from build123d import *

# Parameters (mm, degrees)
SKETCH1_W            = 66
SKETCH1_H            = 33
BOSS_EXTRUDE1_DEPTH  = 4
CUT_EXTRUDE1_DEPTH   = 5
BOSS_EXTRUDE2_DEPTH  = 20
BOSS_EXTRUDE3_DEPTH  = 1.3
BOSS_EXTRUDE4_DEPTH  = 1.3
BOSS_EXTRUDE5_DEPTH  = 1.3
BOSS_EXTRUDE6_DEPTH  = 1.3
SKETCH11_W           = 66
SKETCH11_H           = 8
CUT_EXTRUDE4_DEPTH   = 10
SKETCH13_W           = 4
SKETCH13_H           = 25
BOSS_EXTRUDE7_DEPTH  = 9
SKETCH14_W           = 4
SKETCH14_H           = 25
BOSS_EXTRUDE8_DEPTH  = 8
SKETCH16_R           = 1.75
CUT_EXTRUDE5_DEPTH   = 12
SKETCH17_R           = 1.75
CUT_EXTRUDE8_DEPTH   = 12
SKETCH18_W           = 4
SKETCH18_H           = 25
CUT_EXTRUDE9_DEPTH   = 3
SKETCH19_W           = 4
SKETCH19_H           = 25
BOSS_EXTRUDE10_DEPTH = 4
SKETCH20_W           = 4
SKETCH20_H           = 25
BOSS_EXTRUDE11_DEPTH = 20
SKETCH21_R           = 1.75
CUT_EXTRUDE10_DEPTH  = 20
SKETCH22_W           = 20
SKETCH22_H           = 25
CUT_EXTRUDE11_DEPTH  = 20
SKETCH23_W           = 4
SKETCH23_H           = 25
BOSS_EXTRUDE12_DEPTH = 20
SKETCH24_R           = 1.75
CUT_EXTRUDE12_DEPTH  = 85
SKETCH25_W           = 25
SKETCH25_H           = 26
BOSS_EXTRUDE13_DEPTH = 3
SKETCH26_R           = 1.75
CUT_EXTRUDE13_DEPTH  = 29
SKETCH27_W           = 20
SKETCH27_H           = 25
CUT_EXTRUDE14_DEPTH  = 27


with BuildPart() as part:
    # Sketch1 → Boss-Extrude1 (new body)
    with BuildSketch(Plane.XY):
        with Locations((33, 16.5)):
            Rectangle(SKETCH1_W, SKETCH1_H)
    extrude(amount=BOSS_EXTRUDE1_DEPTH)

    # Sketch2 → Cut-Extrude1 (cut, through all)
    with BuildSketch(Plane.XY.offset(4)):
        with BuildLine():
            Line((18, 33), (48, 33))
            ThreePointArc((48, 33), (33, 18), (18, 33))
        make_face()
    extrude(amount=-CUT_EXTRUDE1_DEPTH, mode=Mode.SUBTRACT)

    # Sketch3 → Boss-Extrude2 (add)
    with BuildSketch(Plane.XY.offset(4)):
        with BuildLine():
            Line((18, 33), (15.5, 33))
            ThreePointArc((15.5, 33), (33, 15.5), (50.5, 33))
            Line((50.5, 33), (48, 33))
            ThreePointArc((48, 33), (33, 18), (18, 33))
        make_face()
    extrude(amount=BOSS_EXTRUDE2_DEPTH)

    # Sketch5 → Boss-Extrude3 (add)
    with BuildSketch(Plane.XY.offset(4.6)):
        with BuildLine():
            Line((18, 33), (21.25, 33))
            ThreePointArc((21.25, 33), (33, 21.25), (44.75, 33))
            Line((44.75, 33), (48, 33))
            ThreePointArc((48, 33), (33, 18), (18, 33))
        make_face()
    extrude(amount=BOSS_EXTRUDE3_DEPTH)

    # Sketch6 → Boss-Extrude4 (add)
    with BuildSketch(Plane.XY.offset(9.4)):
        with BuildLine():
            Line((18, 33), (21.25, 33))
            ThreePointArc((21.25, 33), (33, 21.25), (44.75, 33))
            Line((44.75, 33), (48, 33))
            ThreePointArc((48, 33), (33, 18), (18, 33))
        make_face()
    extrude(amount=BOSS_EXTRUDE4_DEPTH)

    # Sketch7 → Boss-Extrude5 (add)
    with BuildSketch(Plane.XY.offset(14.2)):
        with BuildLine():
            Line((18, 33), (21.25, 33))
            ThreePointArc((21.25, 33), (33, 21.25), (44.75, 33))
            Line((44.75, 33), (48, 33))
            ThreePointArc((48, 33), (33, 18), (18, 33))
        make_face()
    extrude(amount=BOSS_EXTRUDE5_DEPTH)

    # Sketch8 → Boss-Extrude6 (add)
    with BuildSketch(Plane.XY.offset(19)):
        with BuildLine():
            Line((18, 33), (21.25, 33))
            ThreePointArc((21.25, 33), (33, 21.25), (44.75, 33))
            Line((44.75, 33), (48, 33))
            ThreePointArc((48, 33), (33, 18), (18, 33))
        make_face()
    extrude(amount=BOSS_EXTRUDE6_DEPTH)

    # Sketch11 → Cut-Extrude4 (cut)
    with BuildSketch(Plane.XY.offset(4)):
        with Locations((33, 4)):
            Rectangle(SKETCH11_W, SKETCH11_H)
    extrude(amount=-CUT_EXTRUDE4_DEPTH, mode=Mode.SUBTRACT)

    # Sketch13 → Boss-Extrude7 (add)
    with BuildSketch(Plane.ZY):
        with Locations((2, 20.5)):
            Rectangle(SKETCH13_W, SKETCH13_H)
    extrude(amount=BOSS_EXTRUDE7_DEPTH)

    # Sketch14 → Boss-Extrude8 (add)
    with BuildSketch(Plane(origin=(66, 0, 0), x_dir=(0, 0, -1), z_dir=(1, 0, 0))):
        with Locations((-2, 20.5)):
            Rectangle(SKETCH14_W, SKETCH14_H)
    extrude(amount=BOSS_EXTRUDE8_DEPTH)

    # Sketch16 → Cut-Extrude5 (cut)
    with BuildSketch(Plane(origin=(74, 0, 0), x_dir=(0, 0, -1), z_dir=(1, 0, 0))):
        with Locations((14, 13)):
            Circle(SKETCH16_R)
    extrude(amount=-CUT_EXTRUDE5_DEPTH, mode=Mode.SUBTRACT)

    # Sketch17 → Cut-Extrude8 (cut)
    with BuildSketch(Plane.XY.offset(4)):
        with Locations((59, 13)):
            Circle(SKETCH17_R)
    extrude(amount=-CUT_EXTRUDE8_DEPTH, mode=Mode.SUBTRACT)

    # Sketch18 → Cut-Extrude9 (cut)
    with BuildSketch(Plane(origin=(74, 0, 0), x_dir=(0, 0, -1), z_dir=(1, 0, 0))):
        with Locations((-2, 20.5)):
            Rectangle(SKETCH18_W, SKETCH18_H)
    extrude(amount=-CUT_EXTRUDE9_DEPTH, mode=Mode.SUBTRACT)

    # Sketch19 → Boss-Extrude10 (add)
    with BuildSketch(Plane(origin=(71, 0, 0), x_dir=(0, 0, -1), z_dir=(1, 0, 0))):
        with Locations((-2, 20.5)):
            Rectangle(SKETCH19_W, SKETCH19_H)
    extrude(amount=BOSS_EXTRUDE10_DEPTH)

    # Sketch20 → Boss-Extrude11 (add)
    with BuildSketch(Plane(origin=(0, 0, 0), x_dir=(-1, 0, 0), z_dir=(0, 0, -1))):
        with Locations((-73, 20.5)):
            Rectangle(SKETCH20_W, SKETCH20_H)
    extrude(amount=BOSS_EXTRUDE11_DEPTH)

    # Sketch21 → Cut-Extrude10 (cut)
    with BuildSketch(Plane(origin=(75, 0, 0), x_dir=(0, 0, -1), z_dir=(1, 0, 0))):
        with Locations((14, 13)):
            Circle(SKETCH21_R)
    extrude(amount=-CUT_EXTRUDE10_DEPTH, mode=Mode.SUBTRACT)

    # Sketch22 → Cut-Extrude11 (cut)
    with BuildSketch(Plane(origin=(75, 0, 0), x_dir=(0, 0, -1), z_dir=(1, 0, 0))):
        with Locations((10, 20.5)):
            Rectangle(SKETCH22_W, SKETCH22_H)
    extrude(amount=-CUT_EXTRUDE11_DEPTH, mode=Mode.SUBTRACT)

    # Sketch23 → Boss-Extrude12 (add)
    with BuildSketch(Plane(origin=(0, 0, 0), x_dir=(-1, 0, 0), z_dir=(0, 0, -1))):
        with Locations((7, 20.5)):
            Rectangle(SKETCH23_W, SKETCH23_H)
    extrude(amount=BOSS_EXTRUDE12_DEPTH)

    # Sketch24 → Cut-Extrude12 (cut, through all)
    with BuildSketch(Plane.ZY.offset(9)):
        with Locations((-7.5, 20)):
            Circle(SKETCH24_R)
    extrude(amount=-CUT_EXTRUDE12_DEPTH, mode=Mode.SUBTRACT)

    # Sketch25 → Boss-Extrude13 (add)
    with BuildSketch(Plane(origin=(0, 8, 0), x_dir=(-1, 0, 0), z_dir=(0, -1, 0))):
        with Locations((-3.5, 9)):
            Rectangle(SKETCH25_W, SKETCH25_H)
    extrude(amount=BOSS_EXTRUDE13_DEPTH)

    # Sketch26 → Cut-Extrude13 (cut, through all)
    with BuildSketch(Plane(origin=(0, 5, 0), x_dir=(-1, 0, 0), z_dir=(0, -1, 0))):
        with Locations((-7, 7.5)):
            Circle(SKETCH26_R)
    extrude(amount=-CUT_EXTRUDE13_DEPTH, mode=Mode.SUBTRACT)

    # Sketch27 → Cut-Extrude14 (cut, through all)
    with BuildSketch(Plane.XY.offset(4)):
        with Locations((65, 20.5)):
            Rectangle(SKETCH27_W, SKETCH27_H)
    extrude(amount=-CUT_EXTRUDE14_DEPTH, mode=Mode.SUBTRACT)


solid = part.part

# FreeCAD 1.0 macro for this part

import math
import FreeCAD as App
import Part
import Sketcher
Q = App.Units.Quantity

doc = App.newDocument("Part")
body = doc.addObject("PartDesign::Body", "Body")

# Sketch on XY plane
sketch1 = body.newObject("Sketcher::SketchObject", "Sketch")
sketch1.AttachmentSupport = (doc.getObject("XY_Plane"), [""])
sketch1.MapMode = "FlatFace"
sketch1.addGeometry([
    Part.LineSegment(App.Vector(0, 33, 0), App.Vector(0, 0, 0)),
    Part.LineSegment(App.Vector(0, 0, 0), App.Vector(66, 0, 0)),
    Part.LineSegment(App.Vector(66, 0, 0), App.Vector(66, 33, 0)),
    Part.LineSegment(App.Vector(66, 33, 0), App.Vector(0, 33, 0)),
], False)
sketch1.addConstraint([
    Sketcher.Constraint("Coincident", 0, 2, 1, 1),
    Sketcher.Constraint("Coincident", 1, 2, 2, 1),
    Sketcher.Constraint("Coincident", 2, 2, 3, 1),
    Sketcher.Constraint("Coincident", 3, 2, 0, 1),
    Sketcher.Constraint("Vertical", 0),
    Sketcher.Constraint("Horizontal", 1),
    Sketcher.Constraint("Vertical", 2),
    Sketcher.Constraint("Horizontal", 3),
    Sketcher.Constraint("Coincident", 0, 2, -1, 1),
    Sketcher.Constraint("DistanceX", 1, 1, 1, 2, Q("66 mm")),
    Sketcher.Constraint("DistanceY", 0, 2, 0, 1, Q("33 mm")),
])
pad1 = body.newObject("PartDesign::Pad", "Pad")
pad1.Profile = sketch1
pad1.Length = 4

# Sketch on XY plane
sketch2 = body.newObject("Sketcher::SketchObject", "Sketch001")
sketch2.AttachmentSupport = (doc.getObject("XY_Plane"), [""])
sketch2.MapMode = "FlatFace"
sketch2.AttachmentOffset = App.Placement(App.Vector(0, 0, 4), App.Rotation())
sketch2.addGeometry([
    Part.LineSegment(App.Vector(48, 33, 0), App.Vector(18, 33, 0)),
    Part.ArcOfCircle(Part.Circle(App.Vector(33, 33, 0), App.Vector(0, 0, 1), 15), math.radians(180), math.radians(360)),
], False)
sketch2.addConstraint([
    Sketcher.Constraint("Coincident", 0, 1, 1, 2),
    Sketcher.Constraint("Coincident", 1, 1, 0, 2),
    Sketcher.Constraint("Horizontal", 0),
    Sketcher.Constraint("Horizontal", 1, 3, 0, 1),
    Sketcher.Constraint("Radius", 1, Q("15 mm")),
    Sketcher.Constraint("DistanceX", -1, 1, 1, 3, Q("33 mm")),
    Sketcher.Constraint("DistanceY", -1, 1, 1, 3, Q("33 mm")),
])
pocket1 = body.newObject("PartDesign::Pocket", "Pocket")
pocket1.Profile = sketch2
pocket1.Type = "ThroughAll"

# Sketch on XY plane
sketch3 = body.newObject("Sketcher::SketchObject", "Sketch002")
sketch3.AttachmentSupport = (doc.getObject("XY_Plane"), [""])
sketch3.MapMode = "FlatFace"
sketch3.AttachmentOffset = App.Placement(App.Vector(0, 0, 4), App.Rotation())
sketch3.addGeometry([
    Part.LineSegment(App.Vector(18, 33, 0), App.Vector(15.5, 33, 0)),
    Part.ArcOfCircle(Part.Circle(App.Vector(33, 33, 0), App.Vector(0, 0, 1), 17.5), math.radians(180), math.radians(360)),
    Part.LineSegment(App.Vector(50.5, 33, 0), App.Vector(48, 33, 0)),
    Part.ArcOfCircle(Part.Circle(App.Vector(33, 33, 0), App.Vector(0, 0, 1), 15), math.radians(180), math.radians(360)),
], False)
sketch3.addConstraint([
    Sketcher.Constraint("Coincident", 0, 2, 1, 1),
    Sketcher.Constraint("Coincident", 1, 2, 2, 1),
    Sketcher.Constraint("Coincident", 2, 2, 3, 2),
    Sketcher.Constraint("Coincident", 3, 1, 0, 1),
    Sketcher.Constraint("Horizontal", 0),
    Sketcher.Constraint("Horizontal", 2),
    Sketcher.Constraint("Coincident", 3, 3, 1, 3),
    Sketcher.Constraint("Horizontal", 3, 3, 0, 2),
    Sketcher.Constraint("Horizontal", 0, 2, 1, 2),
    Sketcher.Constraint("Radius", 3, Q("15 mm")),
    Sketcher.Constraint("Radius", 1, Q("17.5 mm")),
    Sketcher.Constraint("DistanceX", -1, 1, 1, 3, Q("33 mm")),
    Sketcher.Constraint("DistanceY", -1, 1, 1, 3, Q("33 mm")),
])
pad2 = body.newObject("PartDesign::Pad", "Pad001")
pad2.Profile = sketch3
pad2.Length = 20

# Sketch on XY plane
sketch4 = body.newObject("Sketcher::SketchObject", "Sketch003")
sketch4.AttachmentSupport = (doc.getObject("XY_Plane"), [""])
sketch4.MapMode = "FlatFace"
sketch4.AttachmentOffset = App.Placement(App.Vector(0, 0, 4.6), App.Rotation())
sketch4.addGeometry([
    Part.LineSegment(App.Vector(21.2, 33, 0), App.Vector(18, 33, 0)),
    Part.ArcOfCircle(Part.Circle(App.Vector(33, 33, 0), App.Vector(0, 0, 1), 15), math.radians(180), math.radians(360)),
    Part.LineSegment(App.Vector(48, 33, 0), App.Vector(44.8, 33, 0)),
    Part.ArcOfCircle(Part.Circle(App.Vector(33, 33, 0), App.Vector(0, 0, 1), 11.8), math.radians(180), math.radians(360)),
], False)
sketch4.addConstraint([
    Sketcher.Constraint("Coincident", 0, 2, 1, 1),
    Sketcher.Constraint("Coincident", 1, 2, 2, 1),
    Sketcher.Constraint("Coincident", 2, 2, 3, 2),
    Sketcher.Constraint("Coincident", 3, 1, 0, 1),
    Sketcher.Constraint("Horizontal", 0),
    Sketcher.Constraint("Horizontal", 2),
    Sketcher.Constraint("Coincident", 3, 3, 1, 3),
    Sketcher.Constraint("Horizontal", 3, 3, 0, 2),
    Sketcher.Constraint("Horizontal", 0, 2, 1, 2),
    Sketcher.Constraint("Radius", 1, Q("15 mm")),
    Sketcher.Constraint("Radius", 3, Q("11.75 mm")),
    Sketcher.Constraint("DistanceX", -1, 1, 1, 3, Q("33 mm")),
    Sketcher.Constraint("DistanceY", -1, 1, 1, 3, Q("33 mm")),
])
pad3 = body.newObject("PartDesign::Pad", "Pad002")
pad3.Profile = sketch4
pad3.Length = 1.3

# Sketch on XY plane
sketch5 = body.newObject("Sketcher::SketchObject", "Sketch004")
sketch5.AttachmentSupport = (doc.getObject("XY_Plane"), [""])
sketch5.MapMode = "FlatFace"
sketch5.AttachmentOffset = App.Placement(App.Vector(0, 0, 9.4), App.Rotation())
sketch5.addGeometry([
    Part.LineSegment(App.Vector(21.2, 33, 0), App.Vector(18, 33, 0)),
    Part.ArcOfCircle(Part.Circle(App.Vector(33, 33, 0), App.Vector(0, 0, 1), 15), math.radians(180), math.radians(360)),
    Part.LineSegment(App.Vector(48, 33, 0), App.Vector(44.8, 33, 0)),
    Part.ArcOfCircle(Part.Circle(App.Vector(33, 33, 0), App.Vector(0, 0, 1), 11.8), math.radians(180), math.radians(360)),
], False)
sketch5.addConstraint([
    Sketcher.Constraint("Coincident", 0, 2, 1, 1),
    Sketcher.Constraint("Coincident", 1, 2, 2, 1),
    Sketcher.Constraint("Coincident", 2, 2, 3, 2),
    Sketcher.Constraint("Coincident", 3, 1, 0, 1),
    Sketcher.Constraint("Horizontal", 0),
    Sketcher.Constraint("Horizontal", 2),
    Sketcher.Constraint("Coincident", 3, 3, 1, 3),
    Sketcher.Constraint("Horizontal", 3, 3, 0, 2),
    Sketcher.Constraint("Horizontal", 0, 2, 1, 2),
    Sketcher.Constraint("Radius", 1, Q("15 mm")),
    Sketcher.Constraint("Radius", 3, Q("11.75 mm")),
    Sketcher.Constraint("DistanceX", -1, 1, 1, 3, Q("33 mm")),
    Sketcher.Constraint("DistanceY", -1, 1, 1, 3, Q("33 mm")),
])
pad4 = body.newObject("PartDesign::Pad", "Pad003")
pad4.Profile = sketch5
pad4.Length = 1.3

# Sketch on XY plane
sketch6 = body.newObject("Sketcher::SketchObject", "Sketch005")
sketch6.AttachmentSupport = (doc.getObject("XY_Plane"), [""])
sketch6.MapMode = "FlatFace"
sketch6.AttachmentOffset = App.Placement(App.Vector(0, 0, 14.2), App.Rotation())
sketch6.addGeometry([
    Part.LineSegment(App.Vector(21.2, 33, 0), App.Vector(18, 33, 0)),
    Part.ArcOfCircle(Part.Circle(App.Vector(33, 33, 0), App.Vector(0, 0, 1), 15), math.radians(180), math.radians(360)),
    Part.LineSegment(App.Vector(48, 33, 0), App.Vector(44.8, 33, 0)),
    Part.ArcOfCircle(Part.Circle(App.Vector(33, 33, 0), App.Vector(0, 0, 1), 11.8), math.radians(180), math.radians(360)),
], False)
sketch6.addConstraint([
    Sketcher.Constraint("Coincident", 0, 2, 1, 1),
    Sketcher.Constraint("Coincident", 1, 2, 2, 1),
    Sketcher.Constraint("Coincident", 2, 2, 3, 2),
    Sketcher.Constraint("Coincident", 3, 1, 0, 1),
    Sketcher.Constraint("Horizontal", 0),
    Sketcher.Constraint("Horizontal", 2),
    Sketcher.Constraint("Coincident", 3, 3, 1, 3),
    Sketcher.Constraint("Horizontal", 3, 3, 0, 2),
    Sketcher.Constraint("Horizontal", 0, 2, 1, 2),
    Sketcher.Constraint("Radius", 1, Q("15 mm")),
    Sketcher.Constraint("Radius", 3, Q("11.75 mm")),
    Sketcher.Constraint("DistanceX", -1, 1, 1, 3, Q("33 mm")),
    Sketcher.Constraint("DistanceY", -1, 1, 1, 3, Q("33 mm")),
])
pad5 = body.newObject("PartDesign::Pad", "Pad004")
pad5.Profile = sketch6
pad5.Length = 1.3

# Sketch on XY plane
sketch7 = body.newObject("Sketcher::SketchObject", "Sketch006")
sketch7.AttachmentSupport = (doc.getObject("XY_Plane"), [""])
sketch7.MapMode = "FlatFace"
sketch7.AttachmentOffset = App.Placement(App.Vector(0, 0, 19), App.Rotation())
sketch7.addGeometry([
    Part.LineSegment(App.Vector(21.2, 33, 0), App.Vector(18, 33, 0)),
    Part.ArcOfCircle(Part.Circle(App.Vector(33, 33, 0), App.Vector(0, 0, 1), 15), math.radians(180), math.radians(360)),
    Part.LineSegment(App.Vector(48, 33, 0), App.Vector(44.8, 33, 0)),
    Part.ArcOfCircle(Part.Circle(App.Vector(33, 33, 0), App.Vector(0, 0, 1), 11.8), math.radians(180), math.radians(360)),
], False)
sketch7.addConstraint([
    Sketcher.Constraint("Coincident", 0, 2, 1, 1),
    Sketcher.Constraint("Coincident", 1, 2, 2, 1),
    Sketcher.Constraint("Coincident", 2, 2, 3, 2),
    Sketcher.Constraint("Coincident", 3, 1, 0, 1),
    Sketcher.Constraint("Horizontal", 0),
    Sketcher.Constraint("Horizontal", 2),
    Sketcher.Constraint("Coincident", 3, 3, 1, 3),
    Sketcher.Constraint("Horizontal", 3, 3, 0, 2),
    Sketcher.Constraint("Horizontal", 0, 2, 1, 2),
    Sketcher.Constraint("Radius", 1, Q("15 mm")),
    Sketcher.Constraint("Radius", 3, Q("11.75 mm")),
    Sketcher.Constraint("DistanceX", -1, 1, 1, 3, Q("33 mm")),
    Sketcher.Constraint("DistanceY", -1, 1, 1, 3, Q("33 mm")),
])
pad6 = body.newObject("PartDesign::Pad", "Pad005")
pad6.Profile = sketch7
pad6.Length = 1.3

# Sketch on XY plane
sketch8 = body.newObject("Sketcher::SketchObject", "Sketch007")
sketch8.AttachmentSupport = (doc.getObject("XY_Plane"), [""])
sketch8.MapMode = "FlatFace"
sketch8.AttachmentOffset = App.Placement(App.Vector(0, 0, 4), App.Rotation())
sketch8.addGeometry([
    Part.LineSegment(App.Vector(0, 8, 0), App.Vector(0, 0, 0)),
    Part.LineSegment(App.Vector(0, 0, 0), App.Vector(66, 0, 0)),
    Part.LineSegment(App.Vector(66, 0, 0), App.Vector(66, 8, 0)),
    Part.LineSegment(App.Vector(66, 8, 0), App.Vector(0, 8, 0)),
], False)
sketch8.addConstraint([
    Sketcher.Constraint("Coincident", 0, 2, 1, 1),
    Sketcher.Constraint("Coincident", 1, 2, 2, 1),
    Sketcher.Constraint("Coincident", 2, 2, 3, 1),
    Sketcher.Constraint("Coincident", 3, 2, 0, 1),
    Sketcher.Constraint("Vertical", 0),
    Sketcher.Constraint("Horizontal", 1),
    Sketcher.Constraint("Vertical", 2),
    Sketcher.Constraint("Horizontal", 3),
    Sketcher.Constraint("Coincident", 0, 2, -1, 1),
    Sketcher.Constraint("DistanceX", 1, 1, 1, 2, Q("66 mm")),
    Sketcher.Constraint("DistanceY", 0, 2, 0, 1, Q("8 mm")),
])
pocket2 = body.newObject("PartDesign::Pocket", "Pocket001")
pocket2.Profile = sketch8
pocket2.Length = 10

# Sketch on YZ plane
sketch9 = body.newObject("Sketcher::SketchObject", "Sketch008")
sketch9.AttachmentSupport = (doc.getObject("YZ_Plane"), [""])
sketch9.MapMode = "FlatFace"
sketch9.addGeometry([
    Part.LineSegment(App.Vector(33, 0, 0), App.Vector(8, 0, 0)),
    Part.LineSegment(App.Vector(8, 0, 0), App.Vector(8, 4, 0)),
    Part.LineSegment(App.Vector(8, 4, 0), App.Vector(33, 4, 0)),
    Part.LineSegment(App.Vector(33, 4, 0), App.Vector(33, 0, 0)),
], False)
sketch9.addConstraint([
    Sketcher.Constraint("Coincident", 0, 2, 1, 1),
    Sketcher.Constraint("Coincident", 1, 2, 2, 1),
    Sketcher.Constraint("Coincident", 2, 2, 3, 1),
    Sketcher.Constraint("Coincident", 3, 2, 0, 1),
    Sketcher.Constraint("Horizontal", 0),
    Sketcher.Constraint("Vertical", 1),
    Sketcher.Constraint("Horizontal", 2),
    Sketcher.Constraint("Vertical", 3),
    Sketcher.Constraint("PointOnObject", 0, 2, -1),
    Sketcher.Constraint("DistanceX", 0, 2, 0, 1, Q("25 mm")),
    Sketcher.Constraint("DistanceY", 1, 1, 1, 2, Q("4 mm")),
    Sketcher.Constraint("DistanceX", -1, 1, 0, 2, Q("8 mm")),
])
pad7 = body.newObject("PartDesign::Pad", "Pad006")
pad7.Profile = sketch9
pad7.Length = 9
pad7.Reversed = True

# Sketch on YZ plane
sketch10 = body.newObject("Sketcher::SketchObject", "Sketch009")
sketch10.AttachmentSupport = (doc.getObject("YZ_Plane"), [""])
sketch10.MapMode = "FlatFace"
sketch10.AttachmentOffset = App.Placement(App.Vector(0, 0, 66), App.Rotation())
sketch10.addGeometry([
    Part.LineSegment(App.Vector(33, 4, 0), App.Vector(8, 4, 0)),
    Part.LineSegment(App.Vector(8, 4, 0), App.Vector(8, 0, 0)),
    Part.LineSegment(App.Vector(8, 0, 0), App.Vector(33, 0, 0)),
    Part.LineSegment(App.Vector(33, 0, 0), App.Vector(33, 4, 0)),
], False)
sketch10.addConstraint([
    Sketcher.Constraint("Coincident", 0, 2, 1, 1),
    Sketcher.Constraint("Coincident", 1, 2, 2, 1),
    Sketcher.Constraint("Coincident", 2, 2, 3, 1),
    Sketcher.Constraint("Coincident", 3, 2, 0, 1),
    Sketcher.Constraint("Horizontal", 0),
    Sketcher.Constraint("Vertical", 1),
    Sketcher.Constraint("Horizontal", 2),
    Sketcher.Constraint("Vertical", 3),
    Sketcher.Constraint("PointOnObject", 1, 2, -1),
    Sketcher.Constraint("DistanceX", 0, 2, 0, 1, Q("25 mm")),
    Sketcher.Constraint("DistanceY", 1, 2, 1, 1, Q("4 mm")),
    Sketcher.Constraint("DistanceX", -1, 1, 0, 2, Q("8 mm")),
])
pad8 = body.newObject("PartDesign::Pad", "Pad007")
pad8.Profile = sketch10
pad8.Length = 8

# Sketch on YZ plane
sketch11 = body.newObject("Sketcher::SketchObject", "Sketch010")
sketch11.AttachmentSupport = (doc.getObject("YZ_Plane"), [""])
sketch11.MapMode = "FlatFace"
sketch11.AttachmentOffset = App.Placement(App.Vector(0, 0, 74), App.Rotation())
sketch11.addGeometry(Part.Circle(App.Vector(13, -14, 0), App.Vector(0, 0, 1), 1.8), False)
sketch11.addConstraint([
    Sketcher.Constraint("Diameter", 0, Q("3.5 mm")),
    Sketcher.Constraint("DistanceX", -1, 1, 0, 3, Q("13 mm")),
    Sketcher.Constraint("DistanceY", 0, 3, -1, 1, Q("14 mm")),
])
pocket3 = body.newObject("PartDesign::Pocket", "Pocket002")
pocket3.Profile = sketch11
pocket3.Length = 12

# Sketch on XY plane
sketch12 = body.newObject("Sketcher::SketchObject", "Sketch011")
sketch12.AttachmentSupport = (doc.getObject("XY_Plane"), [""])
sketch12.MapMode = "FlatFace"
sketch12.AttachmentOffset = App.Placement(App.Vector(0, 0, 4), App.Rotation())
sketch12.addGeometry(Part.Circle(App.Vector(59, 13, 0), App.Vector(0, 0, 1), 1.8), False)
sketch12.addConstraint([
    Sketcher.Constraint("Diameter", 0, Q("3.5 mm")),
    Sketcher.Constraint("DistanceX", -1, 1, 0, 3, Q("59 mm")),
    Sketcher.Constraint("DistanceY", -1, 1, 0, 3, Q("13 mm")),
])
pocket4 = body.newObject("PartDesign::Pocket", "Pocket003")
pocket4.Profile = sketch12
pocket4.Length = 12

# Sketch on YZ plane
sketch13 = body.newObject("Sketcher::SketchObject", "Sketch012")
sketch13.AttachmentSupport = (doc.getObject("YZ_Plane"), [""])
sketch13.MapMode = "FlatFace"
sketch13.AttachmentOffset = App.Placement(App.Vector(0, 0, 74), App.Rotation())
sketch13.addGeometry([
    Part.LineSegment(App.Vector(33, 4, 0), App.Vector(8, 4, 0)),
    Part.LineSegment(App.Vector(8, 4, 0), App.Vector(8, 0, 0)),
    Part.LineSegment(App.Vector(8, 0, 0), App.Vector(33, 0, 0)),
    Part.LineSegment(App.Vector(33, 0, 0), App.Vector(33, 4, 0)),
], False)
sketch13.addConstraint([
    Sketcher.Constraint("Coincident", 0, 2, 1, 1),
    Sketcher.Constraint("Coincident", 1, 2, 2, 1),
    Sketcher.Constraint("Coincident", 2, 2, 3, 1),
    Sketcher.Constraint("Coincident", 3, 2, 0, 1),
    Sketcher.Constraint("Horizontal", 0),
    Sketcher.Constraint("Vertical", 1),
    Sketcher.Constraint("Horizontal", 2),
    Sketcher.Constraint("Vertical", 3),
    Sketcher.Constraint("PointOnObject", 1, 2, -1),
    Sketcher.Constraint("DistanceX", 0, 2, 0, 1, Q("25 mm")),
    Sketcher.Constraint("DistanceY", 1, 2, 1, 1, Q("4 mm")),
    Sketcher.Constraint("DistanceX", -1, 1, 0, 2, Q("8 mm")),
])
pocket5 = body.newObject("PartDesign::Pocket", "Pocket004")
pocket5.Profile = sketch13
pocket5.Length = 3

# Sketch on YZ plane
sketch14 = body.newObject("Sketcher::SketchObject", "Sketch013")
sketch14.AttachmentSupport = (doc.getObject("YZ_Plane"), [""])
sketch14.MapMode = "FlatFace"
sketch14.AttachmentOffset = App.Placement(App.Vector(0, 0, 71), App.Rotation())
sketch14.addGeometry([
    Part.LineSegment(App.Vector(33, 4, 0), App.Vector(8, 4, 0)),
    Part.LineSegment(App.Vector(8, 4, 0), App.Vector(8, 0, 0)),
    Part.LineSegment(App.Vector(8, 0, 0), App.Vector(33, 0, 0)),
    Part.LineSegment(App.Vector(33, 0, 0), App.Vector(33, 4, 0)),
], False)
sketch14.addConstraint([
    Sketcher.Constraint("Coincident", 0, 2, 1, 1),
    Sketcher.Constraint("Coincident", 1, 2, 2, 1),
    Sketcher.Constraint("Coincident", 2, 2, 3, 1),
    Sketcher.Constraint("Coincident", 3, 2, 0, 1),
    Sketcher.Constraint("Horizontal", 0),
    Sketcher.Constraint("Vertical", 1),
    Sketcher.Constraint("Horizontal", 2),
    Sketcher.Constraint("Vertical", 3),
    Sketcher.Constraint("PointOnObject", 1, 2, -1),
    Sketcher.Constraint("DistanceX", 0, 2, 0, 1, Q("25 mm")),
    Sketcher.Constraint("DistanceY", 1, 2, 1, 1, Q("4 mm")),
    Sketcher.Constraint("DistanceX", -1, 1, 0, 2, Q("8 mm")),
])
pad9 = body.newObject("PartDesign::Pad", "Pad008")
pad9.Profile = sketch14
pad9.Length = 4

# Sketch on XY plane
sketch15 = body.newObject("Sketcher::SketchObject", "Sketch014")
sketch15.AttachmentSupport = (doc.getObject("XY_Plane"), [""])
sketch15.MapMode = "FlatFace"
sketch15.addGeometry([
    Part.LineSegment(App.Vector(75, 33, 0), App.Vector(75, 8, 0)),
    Part.LineSegment(App.Vector(75, 8, 0), App.Vector(71, 8, 0)),
    Part.LineSegment(App.Vector(71, 8, 0), App.Vector(71, 33, 0)),
    Part.LineSegment(App.Vector(71, 33, 0), App.Vector(75, 33, 0)),
], False)
sketch15.addConstraint([
    Sketcher.Constraint("Coincident", 0, 2, 1, 1),
    Sketcher.Constraint("Coincident", 1, 2, 2, 1),
    Sketcher.Constraint("Coincident", 2, 2, 3, 1),
    Sketcher.Constraint("Coincident", 3, 2, 0, 1),
    Sketcher.Constraint("Vertical", 0),
    Sketcher.Constraint("Horizontal", 1),
    Sketcher.Constraint("Vertical", 2),
    Sketcher.Constraint("Horizontal", 3),
    Sketcher.Constraint("DistanceX", 1, 2, 1, 1, Q("4 mm")),
    Sketcher.Constraint("DistanceY", 0, 2, 0, 1, Q("25 mm")),
    Sketcher.Constraint("DistanceX", -1, 1, 0, 2, Q("75 mm")),
    Sketcher.Constraint("DistanceY", -1, 1, 0, 2, Q("8 mm")),
])
pad10 = body.newObject("PartDesign::Pad", "Pad009")
pad10.Profile = sketch15
pad10.Length = 20
pad10.Reversed = True

# Sketch on YZ plane
sketch16 = body.newObject("Sketcher::SketchObject", "Sketch015")
sketch16.AttachmentSupport = (doc.getObject("YZ_Plane"), [""])
sketch16.MapMode = "FlatFace"
sketch16.AttachmentOffset = App.Placement(App.Vector(0, 0, 75), App.Rotation())
sketch16.addGeometry(Part.Circle(App.Vector(13, -14, 0), App.Vector(0, 0, 1), 1.8), False)
sketch16.addConstraint([
    Sketcher.Constraint("Diameter", 0, Q("3.5 mm")),
    Sketcher.Constraint("DistanceX", -1, 1, 0, 3, Q("13 mm")),
    Sketcher.Constraint("DistanceY", 0, 3, -1, 1, Q("14 mm")),
])
pocket6 = body.newObject("PartDesign::Pocket", "Pocket005")
pocket6.Profile = sketch16
pocket6.Length = 20

# Sketch on YZ plane
sketch17 = body.newObject("Sketcher::SketchObject", "Sketch016")
sketch17.AttachmentSupport = (doc.getObject("YZ_Plane"), [""])
sketch17.MapMode = "FlatFace"
sketch17.AttachmentOffset = App.Placement(App.Vector(0, 0, 75), App.Rotation())
sketch17.addGeometry([
    Part.LineSegment(App.Vector(33, 0, 0), App.Vector(8, 0, 0)),
    Part.LineSegment(App.Vector(8, 0, 0), App.Vector(8, -20, 0)),
    Part.LineSegment(App.Vector(8, -20, 0), App.Vector(33, -20, 0)),
    Part.LineSegment(App.Vector(33, -20, 0), App.Vector(33, 0, 0)),
], False)
sketch17.addConstraint([
    Sketcher.Constraint("Coincident", 0, 2, 1, 1),
    Sketcher.Constraint("Coincident", 1, 2, 2, 1),
    Sketcher.Constraint("Coincident", 2, 2, 3, 1),
    Sketcher.Constraint("Coincident", 3, 2, 0, 1),
    Sketcher.Constraint("Horizontal", 0),
    Sketcher.Constraint("Vertical", 1),
    Sketcher.Constraint("Horizontal", 2),
    Sketcher.Constraint("Vertical", 3),
    Sketcher.Constraint("PointOnObject", 0, 2, -1),
    Sketcher.Constraint("DistanceX", 0, 2, 0, 1, Q("25 mm")),
    Sketcher.Constraint("DistanceY", 1, 2, 1, 1, Q("20 mm")),
    Sketcher.Constraint("DistanceX", -1, 1, 0, 2, Q("8 mm")),
])
pocket7 = body.newObject("PartDesign::Pocket", "Pocket006")
pocket7.Profile = sketch17
pocket7.Length = 20

# Sketch on XY plane
sketch18 = body.newObject("Sketcher::SketchObject", "Sketch017")
sketch18.AttachmentSupport = (doc.getObject("XY_Plane"), [""])
sketch18.MapMode = "FlatFace"
sketch18.addGeometry([
    Part.LineSegment(App.Vector(-5, 33, 0), App.Vector(-5, 8, 0)),
    Part.LineSegment(App.Vector(-5, 8, 0), App.Vector(-9, 8, 0)),
    Part.LineSegment(App.Vector(-9, 8, 0), App.Vector(-9, 33, 0)),
    Part.LineSegment(App.Vector(-9, 33, 0), App.Vector(-5, 33, 0)),
], False)
sketch18.addConstraint([
    Sketcher.Constraint("Coincident", 0, 2, 1, 1),
    Sketcher.Constraint("Coincident", 1, 2, 2, 1),
    Sketcher.Constraint("Coincident", 2, 2, 3, 1),
    Sketcher.Constraint("Coincident", 3, 2, 0, 1),
    Sketcher.Constraint("Vertical", 0),
    Sketcher.Constraint("Horizontal", 1),
    Sketcher.Constraint("Vertical", 2),
    Sketcher.Constraint("Horizontal", 3),
    Sketcher.Constraint("DistanceX", 1, 2, 1, 1, Q("4 mm")),
    Sketcher.Constraint("DistanceY", 0, 2, 0, 1, Q("25 mm")),
    Sketcher.Constraint("DistanceX", 0, 2, -1, 1, Q("5 mm")),
    Sketcher.Constraint("DistanceY", -1, 1, 0, 2, Q("8 mm")),
])
pad11 = body.newObject("PartDesign::Pad", "Pad010")
pad11.Profile = sketch18
pad11.Length = 20
pad11.Reversed = True

# Sketch on YZ plane
sketch19 = body.newObject("Sketcher::SketchObject", "Sketch018")
sketch19.AttachmentSupport = (doc.getObject("YZ_Plane"), [""])
sketch19.MapMode = "FlatFace"
sketch19.AttachmentOffset = App.Placement(App.Vector(0, 0, -9), App.Rotation())
sketch19.addGeometry(Part.Circle(App.Vector(20, -7.5, 0), App.Vector(0, 0, 1), 1.8), False)
sketch19.addConstraint([
    Sketcher.Constraint("Diameter", 0, Q("3.5 mm")),
    Sketcher.Constraint("DistanceX", -1, 1, 0, 3, Q("20 mm")),
    Sketcher.Constraint("DistanceY", 0, 3, -1, 1, Q("7.5 mm")),
])
pocket8 = body.newObject("PartDesign::Pocket", "Pocket007")
pocket8.Profile = sketch19
pocket8.Type = "ThroughAll"
pocket8.Reversed = True

# Sketch on XZ plane
sketch20 = body.newObject("Sketcher::SketchObject", "Sketch019")
sketch20.AttachmentSupport = (doc.getObject("XZ_Plane"), [""])
sketch20.MapMode = "FlatFace"
sketch20.AttachmentOffset = App.Placement(App.Vector(0, 0, -8), App.Rotation())
sketch20.addGeometry([
    Part.LineSegment(App.Vector(16, -22, 0), App.Vector(16, 4, 0)),
    Part.LineSegment(App.Vector(16, 4, 0), App.Vector(-9, 4, 0)),
    Part.LineSegment(App.Vector(-9, 4, 0), App.Vector(-9, -22, 0)),
    Part.LineSegment(App.Vector(-9, -22, 0), App.Vector(16, -22, 0)),
], False)
sketch20.addConstraint([
    Sketcher.Constraint("Coincident", 0, 2, 1, 1),
    Sketcher.Constraint("Coincident", 1, 2, 2, 1),
    Sketcher.Constraint("Coincident", 2, 2, 3, 1),
    Sketcher.Constraint("Coincident", 3, 2, 0, 1),
    Sketcher.Constraint("Vertical", 0),
    Sketcher.Constraint("Horizontal", 1),
    Sketcher.Constraint("Vertical", 2),
    Sketcher.Constraint("Horizontal", 3),
    Sketcher.Constraint("DistanceX", 1, 2, 1, 1, Q("25 mm")),
    Sketcher.Constraint("DistanceY", 0, 1, 0, 2, Q("26 mm")),
    Sketcher.Constraint("DistanceX", -1, 1, 0, 2, Q("16 mm")),
    Sketcher.Constraint("DistanceY", -1, 1, 0, 2, Q("4 mm")),
])
pad12 = body.newObject("PartDesign::Pad", "Pad011")
pad12.Profile = sketch20
pad12.Length = 3

# Sketch on XZ plane
sketch21 = body.newObject("Sketcher::SketchObject", "Sketch020")
sketch21.AttachmentSupport = (doc.getObject("XZ_Plane"), [""])
sketch21.MapMode = "FlatFace"
sketch21.AttachmentOffset = App.Placement(App.Vector(0, 0, -5), App.Rotation())
sketch21.addGeometry(Part.Circle(App.Vector(7, -7.5, 0), App.Vector(0, 0, 1), 1.8), False)
sketch21.addConstraint([
    Sketcher.Constraint("Diameter", 0, Q("3.5 mm")),
    Sketcher.Constraint("DistanceX", -1, 1, 0, 3, Q("7 mm")),
    Sketcher.Constraint("DistanceY", 0, 3, -1, 1, Q("7.5 mm")),
])
pocket9 = body.newObject("PartDesign::Pocket", "Pocket008")
pocket9.Profile = sketch21
pocket9.Type = "ThroughAll"

# Sketch on XY plane
sketch22 = body.newObject("Sketcher::SketchObject", "Sketch021")
sketch22.AttachmentSupport = (doc.getObject("XY_Plane"), [""])
sketch22.MapMode = "FlatFace"
sketch22.AttachmentOffset = App.Placement(App.Vector(0, 0, 4), App.Rotation())
sketch22.addGeometry([
    Part.LineSegment(App.Vector(55, 33, 0), App.Vector(55, 8, 0)),
    Part.LineSegment(App.Vector(55, 8, 0), App.Vector(75, 8, 0)),
    Part.LineSegment(App.Vector(75, 8, 0), App.Vector(75, 33, 0)),
    Part.LineSegment(App.Vector(75, 33, 0), App.Vector(55, 33, 0)),
], False)
sketch22.addConstraint([
    Sketcher.Constraint("Coincident", 0, 2, 1, 1),
    Sketcher.Constraint("Coincident", 1, 2, 2, 1),
    Sketcher.Constraint("Coincident", 2, 2, 3, 1),
    Sketcher.Constraint("Coincident", 3, 2, 0, 1),
    Sketcher.Constraint("Vertical", 0),
    Sketcher.Constraint("Horizontal", 1),
    Sketcher.Constraint("Vertical", 2),
    Sketcher.Constraint("Horizontal", 3),
    Sketcher.Constraint("DistanceX", 1, 1, 1, 2, Q("20 mm")),
    Sketcher.Constraint("DistanceY", 0, 2, 0, 1, Q("25 mm")),
    Sketcher.Constraint("DistanceX", -1, 1, 0, 2, Q("55 mm")),
    Sketcher.Constraint("DistanceY", -1, 1, 0, 2, Q("8 mm")),
])
pocket10 = body.newObject("PartDesign::Pocket", "Pocket009")
pocket10.Profile = sketch22
pocket10.Type = "ThroughAll"

doc.recompute()
